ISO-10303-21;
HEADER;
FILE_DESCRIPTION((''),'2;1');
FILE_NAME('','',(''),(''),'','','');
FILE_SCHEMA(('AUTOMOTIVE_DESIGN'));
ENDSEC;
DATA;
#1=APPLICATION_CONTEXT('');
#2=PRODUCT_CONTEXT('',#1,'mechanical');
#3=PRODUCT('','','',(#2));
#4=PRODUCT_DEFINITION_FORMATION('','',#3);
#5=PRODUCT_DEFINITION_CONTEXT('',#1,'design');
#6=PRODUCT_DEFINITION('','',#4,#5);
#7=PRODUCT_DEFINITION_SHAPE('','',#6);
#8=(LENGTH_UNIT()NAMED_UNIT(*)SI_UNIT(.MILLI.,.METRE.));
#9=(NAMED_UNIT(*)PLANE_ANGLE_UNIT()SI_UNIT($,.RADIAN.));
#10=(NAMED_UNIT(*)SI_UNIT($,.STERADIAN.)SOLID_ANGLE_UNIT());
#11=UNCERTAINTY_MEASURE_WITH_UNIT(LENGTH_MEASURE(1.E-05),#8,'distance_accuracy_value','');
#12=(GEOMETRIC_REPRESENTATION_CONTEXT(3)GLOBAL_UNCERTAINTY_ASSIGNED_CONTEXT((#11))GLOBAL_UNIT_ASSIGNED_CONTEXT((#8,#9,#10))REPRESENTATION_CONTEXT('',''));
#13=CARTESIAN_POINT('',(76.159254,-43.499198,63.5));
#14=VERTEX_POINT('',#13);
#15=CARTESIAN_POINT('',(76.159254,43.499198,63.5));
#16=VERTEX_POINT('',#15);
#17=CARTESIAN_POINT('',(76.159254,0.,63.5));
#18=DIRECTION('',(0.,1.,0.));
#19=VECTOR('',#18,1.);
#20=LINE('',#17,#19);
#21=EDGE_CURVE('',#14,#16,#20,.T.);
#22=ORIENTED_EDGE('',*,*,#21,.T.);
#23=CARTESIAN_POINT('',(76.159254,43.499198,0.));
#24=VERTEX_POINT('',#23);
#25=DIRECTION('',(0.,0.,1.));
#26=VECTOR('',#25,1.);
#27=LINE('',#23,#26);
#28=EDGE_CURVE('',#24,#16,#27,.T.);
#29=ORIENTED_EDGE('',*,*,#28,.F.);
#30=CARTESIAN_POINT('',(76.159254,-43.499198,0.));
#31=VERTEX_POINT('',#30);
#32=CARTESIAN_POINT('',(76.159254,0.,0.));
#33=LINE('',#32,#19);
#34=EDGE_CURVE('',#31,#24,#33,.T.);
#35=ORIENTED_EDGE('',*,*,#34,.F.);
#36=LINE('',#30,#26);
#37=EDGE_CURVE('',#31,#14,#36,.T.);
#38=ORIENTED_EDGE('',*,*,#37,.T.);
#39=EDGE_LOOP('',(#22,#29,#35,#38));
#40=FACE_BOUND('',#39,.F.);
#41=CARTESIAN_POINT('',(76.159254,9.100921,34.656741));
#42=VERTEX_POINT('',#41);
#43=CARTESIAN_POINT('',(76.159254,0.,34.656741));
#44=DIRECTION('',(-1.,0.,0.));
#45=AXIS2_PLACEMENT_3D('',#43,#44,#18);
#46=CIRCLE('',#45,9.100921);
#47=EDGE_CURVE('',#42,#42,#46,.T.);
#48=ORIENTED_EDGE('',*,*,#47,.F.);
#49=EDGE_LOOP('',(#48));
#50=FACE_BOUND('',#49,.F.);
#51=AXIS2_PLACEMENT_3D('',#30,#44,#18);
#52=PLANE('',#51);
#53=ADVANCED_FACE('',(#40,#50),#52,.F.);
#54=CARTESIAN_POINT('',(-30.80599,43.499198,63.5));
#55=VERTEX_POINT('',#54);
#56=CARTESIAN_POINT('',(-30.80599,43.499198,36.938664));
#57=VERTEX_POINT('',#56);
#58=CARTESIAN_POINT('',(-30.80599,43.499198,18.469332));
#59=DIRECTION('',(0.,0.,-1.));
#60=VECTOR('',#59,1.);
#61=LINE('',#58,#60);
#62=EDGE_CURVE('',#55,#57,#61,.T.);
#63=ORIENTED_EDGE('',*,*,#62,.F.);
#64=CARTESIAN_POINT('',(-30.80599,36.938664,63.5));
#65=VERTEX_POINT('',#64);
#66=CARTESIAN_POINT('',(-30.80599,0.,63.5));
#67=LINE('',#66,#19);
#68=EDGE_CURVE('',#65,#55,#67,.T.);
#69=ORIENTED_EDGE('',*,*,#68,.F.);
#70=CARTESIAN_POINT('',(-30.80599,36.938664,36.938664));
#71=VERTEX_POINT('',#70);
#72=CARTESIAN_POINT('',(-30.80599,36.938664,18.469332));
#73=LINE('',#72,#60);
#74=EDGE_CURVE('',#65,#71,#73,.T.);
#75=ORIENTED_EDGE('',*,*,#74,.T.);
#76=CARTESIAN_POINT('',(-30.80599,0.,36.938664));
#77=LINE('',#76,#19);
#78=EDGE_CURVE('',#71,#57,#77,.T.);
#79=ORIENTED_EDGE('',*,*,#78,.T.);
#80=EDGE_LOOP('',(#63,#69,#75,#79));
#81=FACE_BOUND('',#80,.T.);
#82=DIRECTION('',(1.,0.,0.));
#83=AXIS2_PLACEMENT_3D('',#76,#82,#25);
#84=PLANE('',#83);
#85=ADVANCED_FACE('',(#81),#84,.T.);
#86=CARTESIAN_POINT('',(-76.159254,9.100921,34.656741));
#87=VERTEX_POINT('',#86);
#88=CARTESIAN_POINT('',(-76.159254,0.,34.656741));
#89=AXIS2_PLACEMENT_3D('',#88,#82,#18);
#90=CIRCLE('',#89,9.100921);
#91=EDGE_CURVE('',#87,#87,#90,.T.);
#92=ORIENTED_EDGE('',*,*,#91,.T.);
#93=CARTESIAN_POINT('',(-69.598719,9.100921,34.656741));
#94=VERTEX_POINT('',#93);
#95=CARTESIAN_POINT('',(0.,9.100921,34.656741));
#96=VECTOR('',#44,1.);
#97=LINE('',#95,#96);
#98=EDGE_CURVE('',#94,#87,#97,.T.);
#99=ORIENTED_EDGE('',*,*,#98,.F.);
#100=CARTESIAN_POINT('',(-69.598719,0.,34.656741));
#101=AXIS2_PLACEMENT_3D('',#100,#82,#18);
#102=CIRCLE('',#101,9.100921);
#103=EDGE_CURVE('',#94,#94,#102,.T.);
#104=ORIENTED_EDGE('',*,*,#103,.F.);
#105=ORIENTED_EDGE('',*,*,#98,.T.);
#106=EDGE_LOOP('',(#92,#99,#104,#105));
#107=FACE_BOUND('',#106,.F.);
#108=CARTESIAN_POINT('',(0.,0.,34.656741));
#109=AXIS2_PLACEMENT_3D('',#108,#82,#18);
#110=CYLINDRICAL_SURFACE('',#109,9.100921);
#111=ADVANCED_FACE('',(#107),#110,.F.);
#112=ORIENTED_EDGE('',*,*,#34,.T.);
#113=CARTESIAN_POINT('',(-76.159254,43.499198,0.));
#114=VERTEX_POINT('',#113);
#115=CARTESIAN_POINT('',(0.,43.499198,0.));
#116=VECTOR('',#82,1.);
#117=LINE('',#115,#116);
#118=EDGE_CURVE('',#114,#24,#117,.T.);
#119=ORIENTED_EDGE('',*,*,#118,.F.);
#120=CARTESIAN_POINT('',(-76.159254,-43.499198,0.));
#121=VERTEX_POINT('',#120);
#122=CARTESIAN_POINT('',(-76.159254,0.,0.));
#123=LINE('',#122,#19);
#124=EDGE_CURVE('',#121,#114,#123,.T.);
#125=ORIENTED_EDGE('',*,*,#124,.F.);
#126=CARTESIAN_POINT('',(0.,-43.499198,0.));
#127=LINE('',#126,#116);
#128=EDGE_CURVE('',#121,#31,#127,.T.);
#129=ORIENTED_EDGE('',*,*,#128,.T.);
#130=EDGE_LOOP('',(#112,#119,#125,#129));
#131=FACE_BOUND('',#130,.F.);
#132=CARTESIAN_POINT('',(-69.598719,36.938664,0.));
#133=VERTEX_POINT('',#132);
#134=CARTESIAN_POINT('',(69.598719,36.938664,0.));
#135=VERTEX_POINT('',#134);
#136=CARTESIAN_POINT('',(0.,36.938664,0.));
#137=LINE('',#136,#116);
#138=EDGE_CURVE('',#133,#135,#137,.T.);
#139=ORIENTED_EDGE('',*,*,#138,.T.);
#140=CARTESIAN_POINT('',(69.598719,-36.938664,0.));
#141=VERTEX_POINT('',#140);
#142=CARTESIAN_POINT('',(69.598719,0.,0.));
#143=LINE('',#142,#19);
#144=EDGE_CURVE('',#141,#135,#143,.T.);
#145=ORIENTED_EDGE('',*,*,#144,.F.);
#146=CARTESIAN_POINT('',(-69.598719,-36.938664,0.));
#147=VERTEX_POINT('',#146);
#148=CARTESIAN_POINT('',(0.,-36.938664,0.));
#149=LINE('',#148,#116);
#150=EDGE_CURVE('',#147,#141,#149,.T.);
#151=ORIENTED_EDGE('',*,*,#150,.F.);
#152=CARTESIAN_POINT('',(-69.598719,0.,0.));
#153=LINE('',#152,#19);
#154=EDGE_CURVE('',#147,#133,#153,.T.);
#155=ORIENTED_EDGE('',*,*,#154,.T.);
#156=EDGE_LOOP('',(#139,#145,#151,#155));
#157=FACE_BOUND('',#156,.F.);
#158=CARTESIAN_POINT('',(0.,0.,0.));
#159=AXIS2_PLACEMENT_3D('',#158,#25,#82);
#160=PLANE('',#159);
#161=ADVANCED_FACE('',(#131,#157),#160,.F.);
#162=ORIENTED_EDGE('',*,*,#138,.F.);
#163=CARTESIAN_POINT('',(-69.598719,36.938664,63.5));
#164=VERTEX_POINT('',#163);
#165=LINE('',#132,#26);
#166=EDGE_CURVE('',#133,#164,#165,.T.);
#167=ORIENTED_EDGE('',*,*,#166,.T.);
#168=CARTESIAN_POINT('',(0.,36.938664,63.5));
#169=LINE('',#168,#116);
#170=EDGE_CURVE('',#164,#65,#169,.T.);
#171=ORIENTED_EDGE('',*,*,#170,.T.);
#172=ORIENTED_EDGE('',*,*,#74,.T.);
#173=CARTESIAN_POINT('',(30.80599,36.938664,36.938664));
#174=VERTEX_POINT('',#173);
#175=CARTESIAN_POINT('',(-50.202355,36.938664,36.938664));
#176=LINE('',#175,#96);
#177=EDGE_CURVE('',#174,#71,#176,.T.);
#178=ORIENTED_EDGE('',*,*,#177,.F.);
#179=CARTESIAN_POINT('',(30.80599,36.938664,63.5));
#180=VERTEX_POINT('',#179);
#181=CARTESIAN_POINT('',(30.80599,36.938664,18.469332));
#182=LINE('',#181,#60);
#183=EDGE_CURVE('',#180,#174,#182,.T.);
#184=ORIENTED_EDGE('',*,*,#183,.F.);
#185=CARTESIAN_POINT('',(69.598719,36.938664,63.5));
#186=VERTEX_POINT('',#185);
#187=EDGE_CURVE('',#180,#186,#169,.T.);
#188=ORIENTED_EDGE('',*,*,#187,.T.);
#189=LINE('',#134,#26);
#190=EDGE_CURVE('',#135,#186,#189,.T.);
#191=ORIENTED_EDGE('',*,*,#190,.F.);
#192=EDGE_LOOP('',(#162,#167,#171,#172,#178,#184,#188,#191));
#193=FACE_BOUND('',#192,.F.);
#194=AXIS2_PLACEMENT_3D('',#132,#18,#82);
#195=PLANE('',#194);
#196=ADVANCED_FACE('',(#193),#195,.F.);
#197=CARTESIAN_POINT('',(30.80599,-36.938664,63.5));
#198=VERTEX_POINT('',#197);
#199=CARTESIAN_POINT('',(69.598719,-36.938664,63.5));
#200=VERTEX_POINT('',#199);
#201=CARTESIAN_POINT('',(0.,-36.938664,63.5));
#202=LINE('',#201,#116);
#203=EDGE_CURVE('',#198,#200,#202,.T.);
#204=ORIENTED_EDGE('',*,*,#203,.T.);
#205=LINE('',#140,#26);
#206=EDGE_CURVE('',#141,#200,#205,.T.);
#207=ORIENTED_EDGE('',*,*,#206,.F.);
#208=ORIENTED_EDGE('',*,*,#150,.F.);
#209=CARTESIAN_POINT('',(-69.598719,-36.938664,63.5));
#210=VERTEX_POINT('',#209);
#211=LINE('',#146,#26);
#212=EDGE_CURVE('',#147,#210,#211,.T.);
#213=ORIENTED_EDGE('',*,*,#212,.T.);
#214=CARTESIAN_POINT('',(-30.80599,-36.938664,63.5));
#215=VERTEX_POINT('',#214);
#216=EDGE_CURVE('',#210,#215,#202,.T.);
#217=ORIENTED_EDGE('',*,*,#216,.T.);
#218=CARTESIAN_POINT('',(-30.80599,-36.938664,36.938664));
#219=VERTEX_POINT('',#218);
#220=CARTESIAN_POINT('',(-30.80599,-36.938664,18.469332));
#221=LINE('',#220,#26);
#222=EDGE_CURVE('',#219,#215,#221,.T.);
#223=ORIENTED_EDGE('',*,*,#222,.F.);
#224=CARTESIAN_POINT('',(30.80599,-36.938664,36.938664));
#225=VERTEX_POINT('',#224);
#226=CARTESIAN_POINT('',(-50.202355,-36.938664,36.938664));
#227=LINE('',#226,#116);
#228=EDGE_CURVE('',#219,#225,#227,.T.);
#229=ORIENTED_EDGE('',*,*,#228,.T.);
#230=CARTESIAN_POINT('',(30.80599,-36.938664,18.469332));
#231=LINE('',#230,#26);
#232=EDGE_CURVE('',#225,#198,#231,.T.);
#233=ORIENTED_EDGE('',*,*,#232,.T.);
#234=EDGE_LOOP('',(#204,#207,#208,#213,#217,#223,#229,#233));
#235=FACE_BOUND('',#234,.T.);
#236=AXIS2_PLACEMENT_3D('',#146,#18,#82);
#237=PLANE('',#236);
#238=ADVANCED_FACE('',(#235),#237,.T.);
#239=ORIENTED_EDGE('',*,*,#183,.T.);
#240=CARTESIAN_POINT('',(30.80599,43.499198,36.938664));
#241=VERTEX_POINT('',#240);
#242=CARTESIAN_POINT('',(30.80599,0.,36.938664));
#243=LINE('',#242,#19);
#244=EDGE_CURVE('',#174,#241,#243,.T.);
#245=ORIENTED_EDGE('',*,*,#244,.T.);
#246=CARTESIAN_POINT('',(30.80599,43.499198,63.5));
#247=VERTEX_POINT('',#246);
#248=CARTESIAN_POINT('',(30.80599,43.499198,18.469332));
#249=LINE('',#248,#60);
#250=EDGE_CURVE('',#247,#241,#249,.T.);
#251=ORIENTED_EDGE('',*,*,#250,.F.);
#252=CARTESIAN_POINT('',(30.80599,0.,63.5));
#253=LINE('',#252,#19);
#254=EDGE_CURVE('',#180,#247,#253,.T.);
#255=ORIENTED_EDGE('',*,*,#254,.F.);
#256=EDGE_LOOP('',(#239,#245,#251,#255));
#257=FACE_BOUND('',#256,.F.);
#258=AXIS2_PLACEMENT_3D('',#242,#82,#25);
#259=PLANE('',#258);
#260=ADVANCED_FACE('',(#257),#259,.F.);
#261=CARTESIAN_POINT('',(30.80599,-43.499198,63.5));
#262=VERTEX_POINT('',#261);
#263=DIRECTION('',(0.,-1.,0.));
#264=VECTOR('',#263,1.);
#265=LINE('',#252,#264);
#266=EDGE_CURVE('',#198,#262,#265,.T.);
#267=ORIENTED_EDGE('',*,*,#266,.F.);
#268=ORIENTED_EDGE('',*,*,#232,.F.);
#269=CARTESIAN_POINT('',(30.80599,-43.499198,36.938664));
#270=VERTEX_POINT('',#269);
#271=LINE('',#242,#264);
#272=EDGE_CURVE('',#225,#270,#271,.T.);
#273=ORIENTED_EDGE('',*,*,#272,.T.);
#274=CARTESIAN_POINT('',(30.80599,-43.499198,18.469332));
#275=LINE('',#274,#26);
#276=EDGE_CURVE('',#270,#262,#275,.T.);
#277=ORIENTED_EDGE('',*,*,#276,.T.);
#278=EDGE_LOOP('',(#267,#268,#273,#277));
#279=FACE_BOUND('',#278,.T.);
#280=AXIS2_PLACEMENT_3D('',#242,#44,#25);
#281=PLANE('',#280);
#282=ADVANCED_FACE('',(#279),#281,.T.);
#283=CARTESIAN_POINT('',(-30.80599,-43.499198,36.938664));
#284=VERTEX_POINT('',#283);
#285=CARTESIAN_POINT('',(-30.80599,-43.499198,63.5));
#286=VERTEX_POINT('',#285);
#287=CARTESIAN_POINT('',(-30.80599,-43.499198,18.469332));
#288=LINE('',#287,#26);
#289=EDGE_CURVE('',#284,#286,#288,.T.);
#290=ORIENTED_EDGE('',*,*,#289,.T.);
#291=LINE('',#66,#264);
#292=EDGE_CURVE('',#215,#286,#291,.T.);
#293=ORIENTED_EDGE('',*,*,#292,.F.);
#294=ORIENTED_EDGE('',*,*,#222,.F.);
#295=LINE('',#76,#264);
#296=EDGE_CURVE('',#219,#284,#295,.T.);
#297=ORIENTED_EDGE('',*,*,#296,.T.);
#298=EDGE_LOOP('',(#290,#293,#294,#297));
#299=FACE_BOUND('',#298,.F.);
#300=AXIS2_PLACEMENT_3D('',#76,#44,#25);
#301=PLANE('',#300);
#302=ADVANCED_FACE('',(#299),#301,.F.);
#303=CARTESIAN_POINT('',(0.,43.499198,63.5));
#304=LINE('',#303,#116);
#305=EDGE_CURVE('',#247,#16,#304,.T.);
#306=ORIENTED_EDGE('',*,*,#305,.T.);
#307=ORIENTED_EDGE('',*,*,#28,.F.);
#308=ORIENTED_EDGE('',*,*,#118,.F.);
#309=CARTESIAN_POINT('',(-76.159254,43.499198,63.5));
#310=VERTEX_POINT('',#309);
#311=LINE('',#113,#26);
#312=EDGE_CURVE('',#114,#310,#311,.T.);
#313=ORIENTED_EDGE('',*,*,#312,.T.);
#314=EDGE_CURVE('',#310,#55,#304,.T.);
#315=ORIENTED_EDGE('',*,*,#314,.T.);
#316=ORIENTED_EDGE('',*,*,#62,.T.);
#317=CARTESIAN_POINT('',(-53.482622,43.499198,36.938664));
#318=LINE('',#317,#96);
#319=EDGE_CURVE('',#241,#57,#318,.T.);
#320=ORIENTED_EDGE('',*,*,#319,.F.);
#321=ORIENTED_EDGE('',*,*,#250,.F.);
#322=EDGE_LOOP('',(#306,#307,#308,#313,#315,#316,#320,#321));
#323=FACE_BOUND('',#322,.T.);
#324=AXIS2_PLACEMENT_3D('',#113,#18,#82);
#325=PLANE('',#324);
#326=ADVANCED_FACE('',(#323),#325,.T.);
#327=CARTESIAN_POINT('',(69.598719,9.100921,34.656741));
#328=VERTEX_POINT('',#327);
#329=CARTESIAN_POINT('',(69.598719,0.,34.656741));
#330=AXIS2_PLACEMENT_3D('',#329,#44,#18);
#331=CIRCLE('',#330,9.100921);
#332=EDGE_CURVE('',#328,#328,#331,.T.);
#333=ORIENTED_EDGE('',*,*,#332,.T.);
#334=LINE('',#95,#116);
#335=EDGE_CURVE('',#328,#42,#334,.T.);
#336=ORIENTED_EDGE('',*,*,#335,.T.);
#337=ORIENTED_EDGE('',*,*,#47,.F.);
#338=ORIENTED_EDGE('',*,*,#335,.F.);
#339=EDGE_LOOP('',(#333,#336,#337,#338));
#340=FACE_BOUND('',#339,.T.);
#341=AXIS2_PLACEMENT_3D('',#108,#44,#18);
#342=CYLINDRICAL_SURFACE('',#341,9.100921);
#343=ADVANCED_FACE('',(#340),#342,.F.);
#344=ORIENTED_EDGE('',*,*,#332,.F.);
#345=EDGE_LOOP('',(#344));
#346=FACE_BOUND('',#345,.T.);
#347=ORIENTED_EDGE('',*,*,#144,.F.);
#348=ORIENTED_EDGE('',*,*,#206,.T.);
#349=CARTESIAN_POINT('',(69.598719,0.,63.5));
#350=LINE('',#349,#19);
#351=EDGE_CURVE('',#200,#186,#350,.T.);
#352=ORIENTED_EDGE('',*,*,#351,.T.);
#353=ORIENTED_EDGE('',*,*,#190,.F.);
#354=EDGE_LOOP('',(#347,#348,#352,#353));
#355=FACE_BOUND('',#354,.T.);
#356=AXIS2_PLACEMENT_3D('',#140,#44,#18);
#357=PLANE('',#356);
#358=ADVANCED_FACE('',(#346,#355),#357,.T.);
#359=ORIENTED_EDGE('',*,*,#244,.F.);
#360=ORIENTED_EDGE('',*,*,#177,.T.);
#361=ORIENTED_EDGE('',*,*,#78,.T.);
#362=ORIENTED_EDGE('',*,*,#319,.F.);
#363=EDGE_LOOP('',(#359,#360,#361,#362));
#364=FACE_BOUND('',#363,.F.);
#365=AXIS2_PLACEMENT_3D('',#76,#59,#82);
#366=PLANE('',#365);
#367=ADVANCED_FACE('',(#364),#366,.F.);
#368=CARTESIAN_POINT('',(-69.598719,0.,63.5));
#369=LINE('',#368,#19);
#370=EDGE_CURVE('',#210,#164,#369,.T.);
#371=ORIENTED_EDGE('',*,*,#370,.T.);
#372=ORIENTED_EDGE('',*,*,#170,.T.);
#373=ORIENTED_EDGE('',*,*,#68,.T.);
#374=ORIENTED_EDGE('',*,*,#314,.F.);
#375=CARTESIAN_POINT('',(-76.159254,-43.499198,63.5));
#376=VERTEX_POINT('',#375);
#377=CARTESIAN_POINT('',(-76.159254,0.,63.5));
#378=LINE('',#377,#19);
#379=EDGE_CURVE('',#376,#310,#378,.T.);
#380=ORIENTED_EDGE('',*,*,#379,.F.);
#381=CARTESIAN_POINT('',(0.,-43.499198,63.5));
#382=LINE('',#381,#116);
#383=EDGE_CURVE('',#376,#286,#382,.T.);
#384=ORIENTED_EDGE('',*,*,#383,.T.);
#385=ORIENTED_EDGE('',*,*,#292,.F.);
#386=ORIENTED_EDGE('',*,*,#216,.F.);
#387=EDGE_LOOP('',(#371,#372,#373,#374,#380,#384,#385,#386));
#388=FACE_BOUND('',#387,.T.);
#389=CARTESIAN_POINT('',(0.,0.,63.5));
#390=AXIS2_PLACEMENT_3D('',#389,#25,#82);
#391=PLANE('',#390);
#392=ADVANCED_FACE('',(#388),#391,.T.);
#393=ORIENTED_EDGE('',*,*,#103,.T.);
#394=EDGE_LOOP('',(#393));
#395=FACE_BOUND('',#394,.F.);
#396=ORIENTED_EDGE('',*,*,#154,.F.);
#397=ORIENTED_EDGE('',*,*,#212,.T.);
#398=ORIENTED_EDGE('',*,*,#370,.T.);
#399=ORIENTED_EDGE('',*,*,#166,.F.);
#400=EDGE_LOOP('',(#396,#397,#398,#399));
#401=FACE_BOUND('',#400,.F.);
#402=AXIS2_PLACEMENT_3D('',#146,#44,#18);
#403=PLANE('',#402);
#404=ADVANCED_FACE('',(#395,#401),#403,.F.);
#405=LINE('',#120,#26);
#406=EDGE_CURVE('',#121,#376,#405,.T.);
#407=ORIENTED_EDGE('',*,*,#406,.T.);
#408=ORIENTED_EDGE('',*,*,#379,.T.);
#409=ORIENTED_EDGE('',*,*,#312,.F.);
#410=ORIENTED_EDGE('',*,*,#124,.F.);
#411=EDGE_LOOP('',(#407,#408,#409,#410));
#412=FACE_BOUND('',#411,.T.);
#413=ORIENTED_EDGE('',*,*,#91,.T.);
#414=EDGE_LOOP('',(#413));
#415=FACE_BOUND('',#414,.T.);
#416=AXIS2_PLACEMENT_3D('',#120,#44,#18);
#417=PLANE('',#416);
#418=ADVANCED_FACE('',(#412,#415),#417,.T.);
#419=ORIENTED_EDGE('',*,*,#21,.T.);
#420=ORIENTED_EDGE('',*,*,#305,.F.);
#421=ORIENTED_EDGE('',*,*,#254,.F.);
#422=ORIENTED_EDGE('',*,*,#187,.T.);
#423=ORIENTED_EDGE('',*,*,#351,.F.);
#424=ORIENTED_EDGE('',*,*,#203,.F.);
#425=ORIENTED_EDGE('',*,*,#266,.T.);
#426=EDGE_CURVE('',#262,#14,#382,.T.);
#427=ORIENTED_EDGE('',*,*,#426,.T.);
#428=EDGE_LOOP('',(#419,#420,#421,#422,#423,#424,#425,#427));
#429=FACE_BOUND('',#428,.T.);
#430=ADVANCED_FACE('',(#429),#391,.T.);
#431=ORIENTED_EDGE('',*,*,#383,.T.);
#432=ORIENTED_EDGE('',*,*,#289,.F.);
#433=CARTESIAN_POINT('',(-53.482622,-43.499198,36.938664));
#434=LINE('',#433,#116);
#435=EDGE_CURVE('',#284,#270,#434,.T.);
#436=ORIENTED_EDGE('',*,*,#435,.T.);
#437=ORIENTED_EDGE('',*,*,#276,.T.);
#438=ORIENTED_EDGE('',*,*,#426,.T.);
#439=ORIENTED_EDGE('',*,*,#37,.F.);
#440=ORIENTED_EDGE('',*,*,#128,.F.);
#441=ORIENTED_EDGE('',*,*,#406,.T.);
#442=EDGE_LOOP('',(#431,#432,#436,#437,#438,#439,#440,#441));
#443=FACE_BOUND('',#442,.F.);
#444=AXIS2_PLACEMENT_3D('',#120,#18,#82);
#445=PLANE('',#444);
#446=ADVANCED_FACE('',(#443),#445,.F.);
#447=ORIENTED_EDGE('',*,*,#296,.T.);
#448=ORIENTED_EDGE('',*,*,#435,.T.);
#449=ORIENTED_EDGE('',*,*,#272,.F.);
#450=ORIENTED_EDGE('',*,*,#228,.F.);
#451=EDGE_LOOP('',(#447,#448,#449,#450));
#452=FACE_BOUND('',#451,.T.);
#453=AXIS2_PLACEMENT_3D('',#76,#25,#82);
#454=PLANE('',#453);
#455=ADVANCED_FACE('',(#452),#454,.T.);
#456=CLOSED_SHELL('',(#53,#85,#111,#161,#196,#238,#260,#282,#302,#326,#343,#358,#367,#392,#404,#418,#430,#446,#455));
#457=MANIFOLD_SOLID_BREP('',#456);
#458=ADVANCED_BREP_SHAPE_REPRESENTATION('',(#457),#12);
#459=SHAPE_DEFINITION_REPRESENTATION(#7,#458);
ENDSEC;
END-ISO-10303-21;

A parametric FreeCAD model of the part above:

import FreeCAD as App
import Part
import Sketcher
Q = App.Units.Quantity

doc = App.newDocument("Part")
body = doc.addObject("PartDesign::Body", "Body")

sketch1 = body.newObject("Sketcher::SketchObject", "Sketch")
sketch1.AttachmentSupport = (doc.getObject("XY_Plane"), [""])
sketch1.MapMode = "FlatFace"
sketch1.addGeometry([
    Part.LineSegment(App.Vector(-76.159254, 43.499198, 0), App.Vector(-76.159254, -43.499198, 0)),
    Part.LineSegment(App.Vector(-76.159254, -43.499198, 0), App.Vector(76.159254, -43.499198, 0)),
    Part.LineSegment(App.Vector(76.159254, -43.499198, 0), App.Vector(76.159254, 43.499198, 0)),
    Part.LineSegment(App.Vector(76.159254, 43.499198, 0), App.Vector(-76.159254, 43.499198, 0)),
    Part.LineSegment(App.Vector(69.598719, -36.938664, 0), App.Vector(-69.598719, -36.938664, 0)),
    Part.LineSegment(App.Vector(-69.598719, -36.938664, 0), App.Vector(-69.598719, 36.938664, 0)),
    Part.LineSegment(App.Vector(-69.598719, 36.938664, 0), App.Vector(69.598719, 36.938664, 0)),
    Part.LineSegment(App.Vector(69.598719, 36.938664, 0), App.Vector(69.598719, -36.938664, 0)),
], False)
sketch1.addConstraint([
    Sketcher.Constraint("Coincident", 0, 2, 1, 1),
    Sketcher.Constraint("Coincident", 1, 2, 2, 1),
    Sketcher.Constraint("Coincident", 2, 2, 3, 1),
    Sketcher.Constraint("Coincident", 3, 2, 0, 1),
    Sketcher.Constraint("Coincident", 4, 2, 5, 1),
    Sketcher.Constraint("Coincident", 5, 2, 6, 1),
    Sketcher.Constraint("Coincident", 6, 2, 7, 1),
    Sketcher.Constraint("Coincident", 7, 2, 4, 1),
    Sketcher.Constraint("Vertical", 0),
    Sketcher.Constraint("Horizontal", 1),
    Sketcher.Constraint("Vertical", 2),
    Sketcher.Constraint("Horizontal", 3),
    Sketcher.Constraint("Horizontal", 4),
    Sketcher.Constraint("Vertical", 5),
    Sketcher.Constraint("Horizontal", 6),
    Sketcher.Constraint("Vertical", 7),
    Sketcher.Constraint("Symmetric", 0, 2, 2, 2, -1, 1),
    Sketcher.Constraint("Symmetric", 4, 2, 6, 2, -1, 1),
    Sketcher.Constraint("DistanceX", 4, 2, 4, 1, Q("139.197439 mm")),
    Sketcher.Constraint("DistanceX", 1, 1, 1, 2, Q("152.318507 mm")),
    Sketcher.Constraint("DistanceY", 0, 2, 0, 1, Q("86.998396 mm")),
    Sketcher.Constraint("DistanceY", 5, 1, 5, 2, Q("73.877327 mm")),
])
pad1 = body.newObject("PartDesign::Pad", "Pad")
pad1.Profile = sketch1
pad1.Length = Q("2.5 in")

sketch2 = body.newObject("Sketcher::SketchObject", "Sketch001")
sketch2.AttachmentSupport = (doc.getObject("XZ_Plane"), [""])
sketch2.MapMode = "FlatFace"
sketch2.addGeometry([
    Part.LineSegment(App.Vector(-30.80599, 75.160909, 0), App.Vector(-30.80599, 36.938664, 0)),
    Part.LineSegment(App.Vector(-30.80599, 36.938664, 0), App.Vector(30.80599, 36.938664, 0)),
    Part.LineSegment(App.Vector(30.80599, 36.938664, 0), App.Vector(30.80599, 75.160909, 0)),
    Part.LineSegment(App.Vector(30.80599, 75.160909, 0), App.Vector(-30.80599, 75.160909, 0)),
], False)
sketch2.addConstraint([
    Sketcher.Constraint("Coincident", 0, 2, 1, 1),
    Sketcher.Constraint("Coincident", 1, 2, 2, 1),
    Sketcher.Constraint("Coincident", 2, 2, 3, 1),
    Sketcher.Constraint("Coincident", 3, 2, 0, 1),
    Sketcher.Constraint("Vertical", 0),
    Sketcher.Constraint("Horizontal", 1),
    Sketcher.Constraint("Vertical", 2),
    Sketcher.Constraint("Horizontal", 3),
    Sketcher.Constraint("DistanceX", 1, 1, 1, 2, Q("61.61198 mm")),
    Sketcher.Constraint("DistanceY", 0, 2, 0, 1, Q("38.222246 mm")),
    Sketcher.Constraint("DistanceX", 0, 2, -1, 1, Q("30.80599 mm")),
    Sketcher.Constraint("DistanceY", -1, 1, 2, 2, Q("75.160909 mm")),
])
pocket1 = body.newObject("PartDesign::Pocket", "Pocket")
pocket1.Profile = sketch2
pocket1.Type = "ThroughAll"
pocket1.Midplane = True

sketch3 = body.newObject("Sketcher::SketchObject", "Sketch002")
sketch3.AttachmentSupport = (doc.getObject("YZ_Plane"), [""])
sketch3.MapMode = "FlatFace"
sketch3.addGeometry(Part.Circle(App.Vector(0, 34.656741, 0), App.Vector(0, 0, 1), 9.100921), False)
sketch3.addConstraint([
    Sketcher.Constraint("PointOnObject", 0, 3, -2),
    Sketcher.Constraint("Diameter", 0, Q("18.201841 mm")),
    Sketcher.Constraint("DistanceY", -1, 1, 0, 3, Q("34.656741 mm")),
])
pocket2 = body.newObject("PartDesign::Pocket", "Pocket001")
pocket2.Profile = sketch3
pocket2.Type = "ThroughAll"
pocket2.Midplane = True

doc.recompute()
